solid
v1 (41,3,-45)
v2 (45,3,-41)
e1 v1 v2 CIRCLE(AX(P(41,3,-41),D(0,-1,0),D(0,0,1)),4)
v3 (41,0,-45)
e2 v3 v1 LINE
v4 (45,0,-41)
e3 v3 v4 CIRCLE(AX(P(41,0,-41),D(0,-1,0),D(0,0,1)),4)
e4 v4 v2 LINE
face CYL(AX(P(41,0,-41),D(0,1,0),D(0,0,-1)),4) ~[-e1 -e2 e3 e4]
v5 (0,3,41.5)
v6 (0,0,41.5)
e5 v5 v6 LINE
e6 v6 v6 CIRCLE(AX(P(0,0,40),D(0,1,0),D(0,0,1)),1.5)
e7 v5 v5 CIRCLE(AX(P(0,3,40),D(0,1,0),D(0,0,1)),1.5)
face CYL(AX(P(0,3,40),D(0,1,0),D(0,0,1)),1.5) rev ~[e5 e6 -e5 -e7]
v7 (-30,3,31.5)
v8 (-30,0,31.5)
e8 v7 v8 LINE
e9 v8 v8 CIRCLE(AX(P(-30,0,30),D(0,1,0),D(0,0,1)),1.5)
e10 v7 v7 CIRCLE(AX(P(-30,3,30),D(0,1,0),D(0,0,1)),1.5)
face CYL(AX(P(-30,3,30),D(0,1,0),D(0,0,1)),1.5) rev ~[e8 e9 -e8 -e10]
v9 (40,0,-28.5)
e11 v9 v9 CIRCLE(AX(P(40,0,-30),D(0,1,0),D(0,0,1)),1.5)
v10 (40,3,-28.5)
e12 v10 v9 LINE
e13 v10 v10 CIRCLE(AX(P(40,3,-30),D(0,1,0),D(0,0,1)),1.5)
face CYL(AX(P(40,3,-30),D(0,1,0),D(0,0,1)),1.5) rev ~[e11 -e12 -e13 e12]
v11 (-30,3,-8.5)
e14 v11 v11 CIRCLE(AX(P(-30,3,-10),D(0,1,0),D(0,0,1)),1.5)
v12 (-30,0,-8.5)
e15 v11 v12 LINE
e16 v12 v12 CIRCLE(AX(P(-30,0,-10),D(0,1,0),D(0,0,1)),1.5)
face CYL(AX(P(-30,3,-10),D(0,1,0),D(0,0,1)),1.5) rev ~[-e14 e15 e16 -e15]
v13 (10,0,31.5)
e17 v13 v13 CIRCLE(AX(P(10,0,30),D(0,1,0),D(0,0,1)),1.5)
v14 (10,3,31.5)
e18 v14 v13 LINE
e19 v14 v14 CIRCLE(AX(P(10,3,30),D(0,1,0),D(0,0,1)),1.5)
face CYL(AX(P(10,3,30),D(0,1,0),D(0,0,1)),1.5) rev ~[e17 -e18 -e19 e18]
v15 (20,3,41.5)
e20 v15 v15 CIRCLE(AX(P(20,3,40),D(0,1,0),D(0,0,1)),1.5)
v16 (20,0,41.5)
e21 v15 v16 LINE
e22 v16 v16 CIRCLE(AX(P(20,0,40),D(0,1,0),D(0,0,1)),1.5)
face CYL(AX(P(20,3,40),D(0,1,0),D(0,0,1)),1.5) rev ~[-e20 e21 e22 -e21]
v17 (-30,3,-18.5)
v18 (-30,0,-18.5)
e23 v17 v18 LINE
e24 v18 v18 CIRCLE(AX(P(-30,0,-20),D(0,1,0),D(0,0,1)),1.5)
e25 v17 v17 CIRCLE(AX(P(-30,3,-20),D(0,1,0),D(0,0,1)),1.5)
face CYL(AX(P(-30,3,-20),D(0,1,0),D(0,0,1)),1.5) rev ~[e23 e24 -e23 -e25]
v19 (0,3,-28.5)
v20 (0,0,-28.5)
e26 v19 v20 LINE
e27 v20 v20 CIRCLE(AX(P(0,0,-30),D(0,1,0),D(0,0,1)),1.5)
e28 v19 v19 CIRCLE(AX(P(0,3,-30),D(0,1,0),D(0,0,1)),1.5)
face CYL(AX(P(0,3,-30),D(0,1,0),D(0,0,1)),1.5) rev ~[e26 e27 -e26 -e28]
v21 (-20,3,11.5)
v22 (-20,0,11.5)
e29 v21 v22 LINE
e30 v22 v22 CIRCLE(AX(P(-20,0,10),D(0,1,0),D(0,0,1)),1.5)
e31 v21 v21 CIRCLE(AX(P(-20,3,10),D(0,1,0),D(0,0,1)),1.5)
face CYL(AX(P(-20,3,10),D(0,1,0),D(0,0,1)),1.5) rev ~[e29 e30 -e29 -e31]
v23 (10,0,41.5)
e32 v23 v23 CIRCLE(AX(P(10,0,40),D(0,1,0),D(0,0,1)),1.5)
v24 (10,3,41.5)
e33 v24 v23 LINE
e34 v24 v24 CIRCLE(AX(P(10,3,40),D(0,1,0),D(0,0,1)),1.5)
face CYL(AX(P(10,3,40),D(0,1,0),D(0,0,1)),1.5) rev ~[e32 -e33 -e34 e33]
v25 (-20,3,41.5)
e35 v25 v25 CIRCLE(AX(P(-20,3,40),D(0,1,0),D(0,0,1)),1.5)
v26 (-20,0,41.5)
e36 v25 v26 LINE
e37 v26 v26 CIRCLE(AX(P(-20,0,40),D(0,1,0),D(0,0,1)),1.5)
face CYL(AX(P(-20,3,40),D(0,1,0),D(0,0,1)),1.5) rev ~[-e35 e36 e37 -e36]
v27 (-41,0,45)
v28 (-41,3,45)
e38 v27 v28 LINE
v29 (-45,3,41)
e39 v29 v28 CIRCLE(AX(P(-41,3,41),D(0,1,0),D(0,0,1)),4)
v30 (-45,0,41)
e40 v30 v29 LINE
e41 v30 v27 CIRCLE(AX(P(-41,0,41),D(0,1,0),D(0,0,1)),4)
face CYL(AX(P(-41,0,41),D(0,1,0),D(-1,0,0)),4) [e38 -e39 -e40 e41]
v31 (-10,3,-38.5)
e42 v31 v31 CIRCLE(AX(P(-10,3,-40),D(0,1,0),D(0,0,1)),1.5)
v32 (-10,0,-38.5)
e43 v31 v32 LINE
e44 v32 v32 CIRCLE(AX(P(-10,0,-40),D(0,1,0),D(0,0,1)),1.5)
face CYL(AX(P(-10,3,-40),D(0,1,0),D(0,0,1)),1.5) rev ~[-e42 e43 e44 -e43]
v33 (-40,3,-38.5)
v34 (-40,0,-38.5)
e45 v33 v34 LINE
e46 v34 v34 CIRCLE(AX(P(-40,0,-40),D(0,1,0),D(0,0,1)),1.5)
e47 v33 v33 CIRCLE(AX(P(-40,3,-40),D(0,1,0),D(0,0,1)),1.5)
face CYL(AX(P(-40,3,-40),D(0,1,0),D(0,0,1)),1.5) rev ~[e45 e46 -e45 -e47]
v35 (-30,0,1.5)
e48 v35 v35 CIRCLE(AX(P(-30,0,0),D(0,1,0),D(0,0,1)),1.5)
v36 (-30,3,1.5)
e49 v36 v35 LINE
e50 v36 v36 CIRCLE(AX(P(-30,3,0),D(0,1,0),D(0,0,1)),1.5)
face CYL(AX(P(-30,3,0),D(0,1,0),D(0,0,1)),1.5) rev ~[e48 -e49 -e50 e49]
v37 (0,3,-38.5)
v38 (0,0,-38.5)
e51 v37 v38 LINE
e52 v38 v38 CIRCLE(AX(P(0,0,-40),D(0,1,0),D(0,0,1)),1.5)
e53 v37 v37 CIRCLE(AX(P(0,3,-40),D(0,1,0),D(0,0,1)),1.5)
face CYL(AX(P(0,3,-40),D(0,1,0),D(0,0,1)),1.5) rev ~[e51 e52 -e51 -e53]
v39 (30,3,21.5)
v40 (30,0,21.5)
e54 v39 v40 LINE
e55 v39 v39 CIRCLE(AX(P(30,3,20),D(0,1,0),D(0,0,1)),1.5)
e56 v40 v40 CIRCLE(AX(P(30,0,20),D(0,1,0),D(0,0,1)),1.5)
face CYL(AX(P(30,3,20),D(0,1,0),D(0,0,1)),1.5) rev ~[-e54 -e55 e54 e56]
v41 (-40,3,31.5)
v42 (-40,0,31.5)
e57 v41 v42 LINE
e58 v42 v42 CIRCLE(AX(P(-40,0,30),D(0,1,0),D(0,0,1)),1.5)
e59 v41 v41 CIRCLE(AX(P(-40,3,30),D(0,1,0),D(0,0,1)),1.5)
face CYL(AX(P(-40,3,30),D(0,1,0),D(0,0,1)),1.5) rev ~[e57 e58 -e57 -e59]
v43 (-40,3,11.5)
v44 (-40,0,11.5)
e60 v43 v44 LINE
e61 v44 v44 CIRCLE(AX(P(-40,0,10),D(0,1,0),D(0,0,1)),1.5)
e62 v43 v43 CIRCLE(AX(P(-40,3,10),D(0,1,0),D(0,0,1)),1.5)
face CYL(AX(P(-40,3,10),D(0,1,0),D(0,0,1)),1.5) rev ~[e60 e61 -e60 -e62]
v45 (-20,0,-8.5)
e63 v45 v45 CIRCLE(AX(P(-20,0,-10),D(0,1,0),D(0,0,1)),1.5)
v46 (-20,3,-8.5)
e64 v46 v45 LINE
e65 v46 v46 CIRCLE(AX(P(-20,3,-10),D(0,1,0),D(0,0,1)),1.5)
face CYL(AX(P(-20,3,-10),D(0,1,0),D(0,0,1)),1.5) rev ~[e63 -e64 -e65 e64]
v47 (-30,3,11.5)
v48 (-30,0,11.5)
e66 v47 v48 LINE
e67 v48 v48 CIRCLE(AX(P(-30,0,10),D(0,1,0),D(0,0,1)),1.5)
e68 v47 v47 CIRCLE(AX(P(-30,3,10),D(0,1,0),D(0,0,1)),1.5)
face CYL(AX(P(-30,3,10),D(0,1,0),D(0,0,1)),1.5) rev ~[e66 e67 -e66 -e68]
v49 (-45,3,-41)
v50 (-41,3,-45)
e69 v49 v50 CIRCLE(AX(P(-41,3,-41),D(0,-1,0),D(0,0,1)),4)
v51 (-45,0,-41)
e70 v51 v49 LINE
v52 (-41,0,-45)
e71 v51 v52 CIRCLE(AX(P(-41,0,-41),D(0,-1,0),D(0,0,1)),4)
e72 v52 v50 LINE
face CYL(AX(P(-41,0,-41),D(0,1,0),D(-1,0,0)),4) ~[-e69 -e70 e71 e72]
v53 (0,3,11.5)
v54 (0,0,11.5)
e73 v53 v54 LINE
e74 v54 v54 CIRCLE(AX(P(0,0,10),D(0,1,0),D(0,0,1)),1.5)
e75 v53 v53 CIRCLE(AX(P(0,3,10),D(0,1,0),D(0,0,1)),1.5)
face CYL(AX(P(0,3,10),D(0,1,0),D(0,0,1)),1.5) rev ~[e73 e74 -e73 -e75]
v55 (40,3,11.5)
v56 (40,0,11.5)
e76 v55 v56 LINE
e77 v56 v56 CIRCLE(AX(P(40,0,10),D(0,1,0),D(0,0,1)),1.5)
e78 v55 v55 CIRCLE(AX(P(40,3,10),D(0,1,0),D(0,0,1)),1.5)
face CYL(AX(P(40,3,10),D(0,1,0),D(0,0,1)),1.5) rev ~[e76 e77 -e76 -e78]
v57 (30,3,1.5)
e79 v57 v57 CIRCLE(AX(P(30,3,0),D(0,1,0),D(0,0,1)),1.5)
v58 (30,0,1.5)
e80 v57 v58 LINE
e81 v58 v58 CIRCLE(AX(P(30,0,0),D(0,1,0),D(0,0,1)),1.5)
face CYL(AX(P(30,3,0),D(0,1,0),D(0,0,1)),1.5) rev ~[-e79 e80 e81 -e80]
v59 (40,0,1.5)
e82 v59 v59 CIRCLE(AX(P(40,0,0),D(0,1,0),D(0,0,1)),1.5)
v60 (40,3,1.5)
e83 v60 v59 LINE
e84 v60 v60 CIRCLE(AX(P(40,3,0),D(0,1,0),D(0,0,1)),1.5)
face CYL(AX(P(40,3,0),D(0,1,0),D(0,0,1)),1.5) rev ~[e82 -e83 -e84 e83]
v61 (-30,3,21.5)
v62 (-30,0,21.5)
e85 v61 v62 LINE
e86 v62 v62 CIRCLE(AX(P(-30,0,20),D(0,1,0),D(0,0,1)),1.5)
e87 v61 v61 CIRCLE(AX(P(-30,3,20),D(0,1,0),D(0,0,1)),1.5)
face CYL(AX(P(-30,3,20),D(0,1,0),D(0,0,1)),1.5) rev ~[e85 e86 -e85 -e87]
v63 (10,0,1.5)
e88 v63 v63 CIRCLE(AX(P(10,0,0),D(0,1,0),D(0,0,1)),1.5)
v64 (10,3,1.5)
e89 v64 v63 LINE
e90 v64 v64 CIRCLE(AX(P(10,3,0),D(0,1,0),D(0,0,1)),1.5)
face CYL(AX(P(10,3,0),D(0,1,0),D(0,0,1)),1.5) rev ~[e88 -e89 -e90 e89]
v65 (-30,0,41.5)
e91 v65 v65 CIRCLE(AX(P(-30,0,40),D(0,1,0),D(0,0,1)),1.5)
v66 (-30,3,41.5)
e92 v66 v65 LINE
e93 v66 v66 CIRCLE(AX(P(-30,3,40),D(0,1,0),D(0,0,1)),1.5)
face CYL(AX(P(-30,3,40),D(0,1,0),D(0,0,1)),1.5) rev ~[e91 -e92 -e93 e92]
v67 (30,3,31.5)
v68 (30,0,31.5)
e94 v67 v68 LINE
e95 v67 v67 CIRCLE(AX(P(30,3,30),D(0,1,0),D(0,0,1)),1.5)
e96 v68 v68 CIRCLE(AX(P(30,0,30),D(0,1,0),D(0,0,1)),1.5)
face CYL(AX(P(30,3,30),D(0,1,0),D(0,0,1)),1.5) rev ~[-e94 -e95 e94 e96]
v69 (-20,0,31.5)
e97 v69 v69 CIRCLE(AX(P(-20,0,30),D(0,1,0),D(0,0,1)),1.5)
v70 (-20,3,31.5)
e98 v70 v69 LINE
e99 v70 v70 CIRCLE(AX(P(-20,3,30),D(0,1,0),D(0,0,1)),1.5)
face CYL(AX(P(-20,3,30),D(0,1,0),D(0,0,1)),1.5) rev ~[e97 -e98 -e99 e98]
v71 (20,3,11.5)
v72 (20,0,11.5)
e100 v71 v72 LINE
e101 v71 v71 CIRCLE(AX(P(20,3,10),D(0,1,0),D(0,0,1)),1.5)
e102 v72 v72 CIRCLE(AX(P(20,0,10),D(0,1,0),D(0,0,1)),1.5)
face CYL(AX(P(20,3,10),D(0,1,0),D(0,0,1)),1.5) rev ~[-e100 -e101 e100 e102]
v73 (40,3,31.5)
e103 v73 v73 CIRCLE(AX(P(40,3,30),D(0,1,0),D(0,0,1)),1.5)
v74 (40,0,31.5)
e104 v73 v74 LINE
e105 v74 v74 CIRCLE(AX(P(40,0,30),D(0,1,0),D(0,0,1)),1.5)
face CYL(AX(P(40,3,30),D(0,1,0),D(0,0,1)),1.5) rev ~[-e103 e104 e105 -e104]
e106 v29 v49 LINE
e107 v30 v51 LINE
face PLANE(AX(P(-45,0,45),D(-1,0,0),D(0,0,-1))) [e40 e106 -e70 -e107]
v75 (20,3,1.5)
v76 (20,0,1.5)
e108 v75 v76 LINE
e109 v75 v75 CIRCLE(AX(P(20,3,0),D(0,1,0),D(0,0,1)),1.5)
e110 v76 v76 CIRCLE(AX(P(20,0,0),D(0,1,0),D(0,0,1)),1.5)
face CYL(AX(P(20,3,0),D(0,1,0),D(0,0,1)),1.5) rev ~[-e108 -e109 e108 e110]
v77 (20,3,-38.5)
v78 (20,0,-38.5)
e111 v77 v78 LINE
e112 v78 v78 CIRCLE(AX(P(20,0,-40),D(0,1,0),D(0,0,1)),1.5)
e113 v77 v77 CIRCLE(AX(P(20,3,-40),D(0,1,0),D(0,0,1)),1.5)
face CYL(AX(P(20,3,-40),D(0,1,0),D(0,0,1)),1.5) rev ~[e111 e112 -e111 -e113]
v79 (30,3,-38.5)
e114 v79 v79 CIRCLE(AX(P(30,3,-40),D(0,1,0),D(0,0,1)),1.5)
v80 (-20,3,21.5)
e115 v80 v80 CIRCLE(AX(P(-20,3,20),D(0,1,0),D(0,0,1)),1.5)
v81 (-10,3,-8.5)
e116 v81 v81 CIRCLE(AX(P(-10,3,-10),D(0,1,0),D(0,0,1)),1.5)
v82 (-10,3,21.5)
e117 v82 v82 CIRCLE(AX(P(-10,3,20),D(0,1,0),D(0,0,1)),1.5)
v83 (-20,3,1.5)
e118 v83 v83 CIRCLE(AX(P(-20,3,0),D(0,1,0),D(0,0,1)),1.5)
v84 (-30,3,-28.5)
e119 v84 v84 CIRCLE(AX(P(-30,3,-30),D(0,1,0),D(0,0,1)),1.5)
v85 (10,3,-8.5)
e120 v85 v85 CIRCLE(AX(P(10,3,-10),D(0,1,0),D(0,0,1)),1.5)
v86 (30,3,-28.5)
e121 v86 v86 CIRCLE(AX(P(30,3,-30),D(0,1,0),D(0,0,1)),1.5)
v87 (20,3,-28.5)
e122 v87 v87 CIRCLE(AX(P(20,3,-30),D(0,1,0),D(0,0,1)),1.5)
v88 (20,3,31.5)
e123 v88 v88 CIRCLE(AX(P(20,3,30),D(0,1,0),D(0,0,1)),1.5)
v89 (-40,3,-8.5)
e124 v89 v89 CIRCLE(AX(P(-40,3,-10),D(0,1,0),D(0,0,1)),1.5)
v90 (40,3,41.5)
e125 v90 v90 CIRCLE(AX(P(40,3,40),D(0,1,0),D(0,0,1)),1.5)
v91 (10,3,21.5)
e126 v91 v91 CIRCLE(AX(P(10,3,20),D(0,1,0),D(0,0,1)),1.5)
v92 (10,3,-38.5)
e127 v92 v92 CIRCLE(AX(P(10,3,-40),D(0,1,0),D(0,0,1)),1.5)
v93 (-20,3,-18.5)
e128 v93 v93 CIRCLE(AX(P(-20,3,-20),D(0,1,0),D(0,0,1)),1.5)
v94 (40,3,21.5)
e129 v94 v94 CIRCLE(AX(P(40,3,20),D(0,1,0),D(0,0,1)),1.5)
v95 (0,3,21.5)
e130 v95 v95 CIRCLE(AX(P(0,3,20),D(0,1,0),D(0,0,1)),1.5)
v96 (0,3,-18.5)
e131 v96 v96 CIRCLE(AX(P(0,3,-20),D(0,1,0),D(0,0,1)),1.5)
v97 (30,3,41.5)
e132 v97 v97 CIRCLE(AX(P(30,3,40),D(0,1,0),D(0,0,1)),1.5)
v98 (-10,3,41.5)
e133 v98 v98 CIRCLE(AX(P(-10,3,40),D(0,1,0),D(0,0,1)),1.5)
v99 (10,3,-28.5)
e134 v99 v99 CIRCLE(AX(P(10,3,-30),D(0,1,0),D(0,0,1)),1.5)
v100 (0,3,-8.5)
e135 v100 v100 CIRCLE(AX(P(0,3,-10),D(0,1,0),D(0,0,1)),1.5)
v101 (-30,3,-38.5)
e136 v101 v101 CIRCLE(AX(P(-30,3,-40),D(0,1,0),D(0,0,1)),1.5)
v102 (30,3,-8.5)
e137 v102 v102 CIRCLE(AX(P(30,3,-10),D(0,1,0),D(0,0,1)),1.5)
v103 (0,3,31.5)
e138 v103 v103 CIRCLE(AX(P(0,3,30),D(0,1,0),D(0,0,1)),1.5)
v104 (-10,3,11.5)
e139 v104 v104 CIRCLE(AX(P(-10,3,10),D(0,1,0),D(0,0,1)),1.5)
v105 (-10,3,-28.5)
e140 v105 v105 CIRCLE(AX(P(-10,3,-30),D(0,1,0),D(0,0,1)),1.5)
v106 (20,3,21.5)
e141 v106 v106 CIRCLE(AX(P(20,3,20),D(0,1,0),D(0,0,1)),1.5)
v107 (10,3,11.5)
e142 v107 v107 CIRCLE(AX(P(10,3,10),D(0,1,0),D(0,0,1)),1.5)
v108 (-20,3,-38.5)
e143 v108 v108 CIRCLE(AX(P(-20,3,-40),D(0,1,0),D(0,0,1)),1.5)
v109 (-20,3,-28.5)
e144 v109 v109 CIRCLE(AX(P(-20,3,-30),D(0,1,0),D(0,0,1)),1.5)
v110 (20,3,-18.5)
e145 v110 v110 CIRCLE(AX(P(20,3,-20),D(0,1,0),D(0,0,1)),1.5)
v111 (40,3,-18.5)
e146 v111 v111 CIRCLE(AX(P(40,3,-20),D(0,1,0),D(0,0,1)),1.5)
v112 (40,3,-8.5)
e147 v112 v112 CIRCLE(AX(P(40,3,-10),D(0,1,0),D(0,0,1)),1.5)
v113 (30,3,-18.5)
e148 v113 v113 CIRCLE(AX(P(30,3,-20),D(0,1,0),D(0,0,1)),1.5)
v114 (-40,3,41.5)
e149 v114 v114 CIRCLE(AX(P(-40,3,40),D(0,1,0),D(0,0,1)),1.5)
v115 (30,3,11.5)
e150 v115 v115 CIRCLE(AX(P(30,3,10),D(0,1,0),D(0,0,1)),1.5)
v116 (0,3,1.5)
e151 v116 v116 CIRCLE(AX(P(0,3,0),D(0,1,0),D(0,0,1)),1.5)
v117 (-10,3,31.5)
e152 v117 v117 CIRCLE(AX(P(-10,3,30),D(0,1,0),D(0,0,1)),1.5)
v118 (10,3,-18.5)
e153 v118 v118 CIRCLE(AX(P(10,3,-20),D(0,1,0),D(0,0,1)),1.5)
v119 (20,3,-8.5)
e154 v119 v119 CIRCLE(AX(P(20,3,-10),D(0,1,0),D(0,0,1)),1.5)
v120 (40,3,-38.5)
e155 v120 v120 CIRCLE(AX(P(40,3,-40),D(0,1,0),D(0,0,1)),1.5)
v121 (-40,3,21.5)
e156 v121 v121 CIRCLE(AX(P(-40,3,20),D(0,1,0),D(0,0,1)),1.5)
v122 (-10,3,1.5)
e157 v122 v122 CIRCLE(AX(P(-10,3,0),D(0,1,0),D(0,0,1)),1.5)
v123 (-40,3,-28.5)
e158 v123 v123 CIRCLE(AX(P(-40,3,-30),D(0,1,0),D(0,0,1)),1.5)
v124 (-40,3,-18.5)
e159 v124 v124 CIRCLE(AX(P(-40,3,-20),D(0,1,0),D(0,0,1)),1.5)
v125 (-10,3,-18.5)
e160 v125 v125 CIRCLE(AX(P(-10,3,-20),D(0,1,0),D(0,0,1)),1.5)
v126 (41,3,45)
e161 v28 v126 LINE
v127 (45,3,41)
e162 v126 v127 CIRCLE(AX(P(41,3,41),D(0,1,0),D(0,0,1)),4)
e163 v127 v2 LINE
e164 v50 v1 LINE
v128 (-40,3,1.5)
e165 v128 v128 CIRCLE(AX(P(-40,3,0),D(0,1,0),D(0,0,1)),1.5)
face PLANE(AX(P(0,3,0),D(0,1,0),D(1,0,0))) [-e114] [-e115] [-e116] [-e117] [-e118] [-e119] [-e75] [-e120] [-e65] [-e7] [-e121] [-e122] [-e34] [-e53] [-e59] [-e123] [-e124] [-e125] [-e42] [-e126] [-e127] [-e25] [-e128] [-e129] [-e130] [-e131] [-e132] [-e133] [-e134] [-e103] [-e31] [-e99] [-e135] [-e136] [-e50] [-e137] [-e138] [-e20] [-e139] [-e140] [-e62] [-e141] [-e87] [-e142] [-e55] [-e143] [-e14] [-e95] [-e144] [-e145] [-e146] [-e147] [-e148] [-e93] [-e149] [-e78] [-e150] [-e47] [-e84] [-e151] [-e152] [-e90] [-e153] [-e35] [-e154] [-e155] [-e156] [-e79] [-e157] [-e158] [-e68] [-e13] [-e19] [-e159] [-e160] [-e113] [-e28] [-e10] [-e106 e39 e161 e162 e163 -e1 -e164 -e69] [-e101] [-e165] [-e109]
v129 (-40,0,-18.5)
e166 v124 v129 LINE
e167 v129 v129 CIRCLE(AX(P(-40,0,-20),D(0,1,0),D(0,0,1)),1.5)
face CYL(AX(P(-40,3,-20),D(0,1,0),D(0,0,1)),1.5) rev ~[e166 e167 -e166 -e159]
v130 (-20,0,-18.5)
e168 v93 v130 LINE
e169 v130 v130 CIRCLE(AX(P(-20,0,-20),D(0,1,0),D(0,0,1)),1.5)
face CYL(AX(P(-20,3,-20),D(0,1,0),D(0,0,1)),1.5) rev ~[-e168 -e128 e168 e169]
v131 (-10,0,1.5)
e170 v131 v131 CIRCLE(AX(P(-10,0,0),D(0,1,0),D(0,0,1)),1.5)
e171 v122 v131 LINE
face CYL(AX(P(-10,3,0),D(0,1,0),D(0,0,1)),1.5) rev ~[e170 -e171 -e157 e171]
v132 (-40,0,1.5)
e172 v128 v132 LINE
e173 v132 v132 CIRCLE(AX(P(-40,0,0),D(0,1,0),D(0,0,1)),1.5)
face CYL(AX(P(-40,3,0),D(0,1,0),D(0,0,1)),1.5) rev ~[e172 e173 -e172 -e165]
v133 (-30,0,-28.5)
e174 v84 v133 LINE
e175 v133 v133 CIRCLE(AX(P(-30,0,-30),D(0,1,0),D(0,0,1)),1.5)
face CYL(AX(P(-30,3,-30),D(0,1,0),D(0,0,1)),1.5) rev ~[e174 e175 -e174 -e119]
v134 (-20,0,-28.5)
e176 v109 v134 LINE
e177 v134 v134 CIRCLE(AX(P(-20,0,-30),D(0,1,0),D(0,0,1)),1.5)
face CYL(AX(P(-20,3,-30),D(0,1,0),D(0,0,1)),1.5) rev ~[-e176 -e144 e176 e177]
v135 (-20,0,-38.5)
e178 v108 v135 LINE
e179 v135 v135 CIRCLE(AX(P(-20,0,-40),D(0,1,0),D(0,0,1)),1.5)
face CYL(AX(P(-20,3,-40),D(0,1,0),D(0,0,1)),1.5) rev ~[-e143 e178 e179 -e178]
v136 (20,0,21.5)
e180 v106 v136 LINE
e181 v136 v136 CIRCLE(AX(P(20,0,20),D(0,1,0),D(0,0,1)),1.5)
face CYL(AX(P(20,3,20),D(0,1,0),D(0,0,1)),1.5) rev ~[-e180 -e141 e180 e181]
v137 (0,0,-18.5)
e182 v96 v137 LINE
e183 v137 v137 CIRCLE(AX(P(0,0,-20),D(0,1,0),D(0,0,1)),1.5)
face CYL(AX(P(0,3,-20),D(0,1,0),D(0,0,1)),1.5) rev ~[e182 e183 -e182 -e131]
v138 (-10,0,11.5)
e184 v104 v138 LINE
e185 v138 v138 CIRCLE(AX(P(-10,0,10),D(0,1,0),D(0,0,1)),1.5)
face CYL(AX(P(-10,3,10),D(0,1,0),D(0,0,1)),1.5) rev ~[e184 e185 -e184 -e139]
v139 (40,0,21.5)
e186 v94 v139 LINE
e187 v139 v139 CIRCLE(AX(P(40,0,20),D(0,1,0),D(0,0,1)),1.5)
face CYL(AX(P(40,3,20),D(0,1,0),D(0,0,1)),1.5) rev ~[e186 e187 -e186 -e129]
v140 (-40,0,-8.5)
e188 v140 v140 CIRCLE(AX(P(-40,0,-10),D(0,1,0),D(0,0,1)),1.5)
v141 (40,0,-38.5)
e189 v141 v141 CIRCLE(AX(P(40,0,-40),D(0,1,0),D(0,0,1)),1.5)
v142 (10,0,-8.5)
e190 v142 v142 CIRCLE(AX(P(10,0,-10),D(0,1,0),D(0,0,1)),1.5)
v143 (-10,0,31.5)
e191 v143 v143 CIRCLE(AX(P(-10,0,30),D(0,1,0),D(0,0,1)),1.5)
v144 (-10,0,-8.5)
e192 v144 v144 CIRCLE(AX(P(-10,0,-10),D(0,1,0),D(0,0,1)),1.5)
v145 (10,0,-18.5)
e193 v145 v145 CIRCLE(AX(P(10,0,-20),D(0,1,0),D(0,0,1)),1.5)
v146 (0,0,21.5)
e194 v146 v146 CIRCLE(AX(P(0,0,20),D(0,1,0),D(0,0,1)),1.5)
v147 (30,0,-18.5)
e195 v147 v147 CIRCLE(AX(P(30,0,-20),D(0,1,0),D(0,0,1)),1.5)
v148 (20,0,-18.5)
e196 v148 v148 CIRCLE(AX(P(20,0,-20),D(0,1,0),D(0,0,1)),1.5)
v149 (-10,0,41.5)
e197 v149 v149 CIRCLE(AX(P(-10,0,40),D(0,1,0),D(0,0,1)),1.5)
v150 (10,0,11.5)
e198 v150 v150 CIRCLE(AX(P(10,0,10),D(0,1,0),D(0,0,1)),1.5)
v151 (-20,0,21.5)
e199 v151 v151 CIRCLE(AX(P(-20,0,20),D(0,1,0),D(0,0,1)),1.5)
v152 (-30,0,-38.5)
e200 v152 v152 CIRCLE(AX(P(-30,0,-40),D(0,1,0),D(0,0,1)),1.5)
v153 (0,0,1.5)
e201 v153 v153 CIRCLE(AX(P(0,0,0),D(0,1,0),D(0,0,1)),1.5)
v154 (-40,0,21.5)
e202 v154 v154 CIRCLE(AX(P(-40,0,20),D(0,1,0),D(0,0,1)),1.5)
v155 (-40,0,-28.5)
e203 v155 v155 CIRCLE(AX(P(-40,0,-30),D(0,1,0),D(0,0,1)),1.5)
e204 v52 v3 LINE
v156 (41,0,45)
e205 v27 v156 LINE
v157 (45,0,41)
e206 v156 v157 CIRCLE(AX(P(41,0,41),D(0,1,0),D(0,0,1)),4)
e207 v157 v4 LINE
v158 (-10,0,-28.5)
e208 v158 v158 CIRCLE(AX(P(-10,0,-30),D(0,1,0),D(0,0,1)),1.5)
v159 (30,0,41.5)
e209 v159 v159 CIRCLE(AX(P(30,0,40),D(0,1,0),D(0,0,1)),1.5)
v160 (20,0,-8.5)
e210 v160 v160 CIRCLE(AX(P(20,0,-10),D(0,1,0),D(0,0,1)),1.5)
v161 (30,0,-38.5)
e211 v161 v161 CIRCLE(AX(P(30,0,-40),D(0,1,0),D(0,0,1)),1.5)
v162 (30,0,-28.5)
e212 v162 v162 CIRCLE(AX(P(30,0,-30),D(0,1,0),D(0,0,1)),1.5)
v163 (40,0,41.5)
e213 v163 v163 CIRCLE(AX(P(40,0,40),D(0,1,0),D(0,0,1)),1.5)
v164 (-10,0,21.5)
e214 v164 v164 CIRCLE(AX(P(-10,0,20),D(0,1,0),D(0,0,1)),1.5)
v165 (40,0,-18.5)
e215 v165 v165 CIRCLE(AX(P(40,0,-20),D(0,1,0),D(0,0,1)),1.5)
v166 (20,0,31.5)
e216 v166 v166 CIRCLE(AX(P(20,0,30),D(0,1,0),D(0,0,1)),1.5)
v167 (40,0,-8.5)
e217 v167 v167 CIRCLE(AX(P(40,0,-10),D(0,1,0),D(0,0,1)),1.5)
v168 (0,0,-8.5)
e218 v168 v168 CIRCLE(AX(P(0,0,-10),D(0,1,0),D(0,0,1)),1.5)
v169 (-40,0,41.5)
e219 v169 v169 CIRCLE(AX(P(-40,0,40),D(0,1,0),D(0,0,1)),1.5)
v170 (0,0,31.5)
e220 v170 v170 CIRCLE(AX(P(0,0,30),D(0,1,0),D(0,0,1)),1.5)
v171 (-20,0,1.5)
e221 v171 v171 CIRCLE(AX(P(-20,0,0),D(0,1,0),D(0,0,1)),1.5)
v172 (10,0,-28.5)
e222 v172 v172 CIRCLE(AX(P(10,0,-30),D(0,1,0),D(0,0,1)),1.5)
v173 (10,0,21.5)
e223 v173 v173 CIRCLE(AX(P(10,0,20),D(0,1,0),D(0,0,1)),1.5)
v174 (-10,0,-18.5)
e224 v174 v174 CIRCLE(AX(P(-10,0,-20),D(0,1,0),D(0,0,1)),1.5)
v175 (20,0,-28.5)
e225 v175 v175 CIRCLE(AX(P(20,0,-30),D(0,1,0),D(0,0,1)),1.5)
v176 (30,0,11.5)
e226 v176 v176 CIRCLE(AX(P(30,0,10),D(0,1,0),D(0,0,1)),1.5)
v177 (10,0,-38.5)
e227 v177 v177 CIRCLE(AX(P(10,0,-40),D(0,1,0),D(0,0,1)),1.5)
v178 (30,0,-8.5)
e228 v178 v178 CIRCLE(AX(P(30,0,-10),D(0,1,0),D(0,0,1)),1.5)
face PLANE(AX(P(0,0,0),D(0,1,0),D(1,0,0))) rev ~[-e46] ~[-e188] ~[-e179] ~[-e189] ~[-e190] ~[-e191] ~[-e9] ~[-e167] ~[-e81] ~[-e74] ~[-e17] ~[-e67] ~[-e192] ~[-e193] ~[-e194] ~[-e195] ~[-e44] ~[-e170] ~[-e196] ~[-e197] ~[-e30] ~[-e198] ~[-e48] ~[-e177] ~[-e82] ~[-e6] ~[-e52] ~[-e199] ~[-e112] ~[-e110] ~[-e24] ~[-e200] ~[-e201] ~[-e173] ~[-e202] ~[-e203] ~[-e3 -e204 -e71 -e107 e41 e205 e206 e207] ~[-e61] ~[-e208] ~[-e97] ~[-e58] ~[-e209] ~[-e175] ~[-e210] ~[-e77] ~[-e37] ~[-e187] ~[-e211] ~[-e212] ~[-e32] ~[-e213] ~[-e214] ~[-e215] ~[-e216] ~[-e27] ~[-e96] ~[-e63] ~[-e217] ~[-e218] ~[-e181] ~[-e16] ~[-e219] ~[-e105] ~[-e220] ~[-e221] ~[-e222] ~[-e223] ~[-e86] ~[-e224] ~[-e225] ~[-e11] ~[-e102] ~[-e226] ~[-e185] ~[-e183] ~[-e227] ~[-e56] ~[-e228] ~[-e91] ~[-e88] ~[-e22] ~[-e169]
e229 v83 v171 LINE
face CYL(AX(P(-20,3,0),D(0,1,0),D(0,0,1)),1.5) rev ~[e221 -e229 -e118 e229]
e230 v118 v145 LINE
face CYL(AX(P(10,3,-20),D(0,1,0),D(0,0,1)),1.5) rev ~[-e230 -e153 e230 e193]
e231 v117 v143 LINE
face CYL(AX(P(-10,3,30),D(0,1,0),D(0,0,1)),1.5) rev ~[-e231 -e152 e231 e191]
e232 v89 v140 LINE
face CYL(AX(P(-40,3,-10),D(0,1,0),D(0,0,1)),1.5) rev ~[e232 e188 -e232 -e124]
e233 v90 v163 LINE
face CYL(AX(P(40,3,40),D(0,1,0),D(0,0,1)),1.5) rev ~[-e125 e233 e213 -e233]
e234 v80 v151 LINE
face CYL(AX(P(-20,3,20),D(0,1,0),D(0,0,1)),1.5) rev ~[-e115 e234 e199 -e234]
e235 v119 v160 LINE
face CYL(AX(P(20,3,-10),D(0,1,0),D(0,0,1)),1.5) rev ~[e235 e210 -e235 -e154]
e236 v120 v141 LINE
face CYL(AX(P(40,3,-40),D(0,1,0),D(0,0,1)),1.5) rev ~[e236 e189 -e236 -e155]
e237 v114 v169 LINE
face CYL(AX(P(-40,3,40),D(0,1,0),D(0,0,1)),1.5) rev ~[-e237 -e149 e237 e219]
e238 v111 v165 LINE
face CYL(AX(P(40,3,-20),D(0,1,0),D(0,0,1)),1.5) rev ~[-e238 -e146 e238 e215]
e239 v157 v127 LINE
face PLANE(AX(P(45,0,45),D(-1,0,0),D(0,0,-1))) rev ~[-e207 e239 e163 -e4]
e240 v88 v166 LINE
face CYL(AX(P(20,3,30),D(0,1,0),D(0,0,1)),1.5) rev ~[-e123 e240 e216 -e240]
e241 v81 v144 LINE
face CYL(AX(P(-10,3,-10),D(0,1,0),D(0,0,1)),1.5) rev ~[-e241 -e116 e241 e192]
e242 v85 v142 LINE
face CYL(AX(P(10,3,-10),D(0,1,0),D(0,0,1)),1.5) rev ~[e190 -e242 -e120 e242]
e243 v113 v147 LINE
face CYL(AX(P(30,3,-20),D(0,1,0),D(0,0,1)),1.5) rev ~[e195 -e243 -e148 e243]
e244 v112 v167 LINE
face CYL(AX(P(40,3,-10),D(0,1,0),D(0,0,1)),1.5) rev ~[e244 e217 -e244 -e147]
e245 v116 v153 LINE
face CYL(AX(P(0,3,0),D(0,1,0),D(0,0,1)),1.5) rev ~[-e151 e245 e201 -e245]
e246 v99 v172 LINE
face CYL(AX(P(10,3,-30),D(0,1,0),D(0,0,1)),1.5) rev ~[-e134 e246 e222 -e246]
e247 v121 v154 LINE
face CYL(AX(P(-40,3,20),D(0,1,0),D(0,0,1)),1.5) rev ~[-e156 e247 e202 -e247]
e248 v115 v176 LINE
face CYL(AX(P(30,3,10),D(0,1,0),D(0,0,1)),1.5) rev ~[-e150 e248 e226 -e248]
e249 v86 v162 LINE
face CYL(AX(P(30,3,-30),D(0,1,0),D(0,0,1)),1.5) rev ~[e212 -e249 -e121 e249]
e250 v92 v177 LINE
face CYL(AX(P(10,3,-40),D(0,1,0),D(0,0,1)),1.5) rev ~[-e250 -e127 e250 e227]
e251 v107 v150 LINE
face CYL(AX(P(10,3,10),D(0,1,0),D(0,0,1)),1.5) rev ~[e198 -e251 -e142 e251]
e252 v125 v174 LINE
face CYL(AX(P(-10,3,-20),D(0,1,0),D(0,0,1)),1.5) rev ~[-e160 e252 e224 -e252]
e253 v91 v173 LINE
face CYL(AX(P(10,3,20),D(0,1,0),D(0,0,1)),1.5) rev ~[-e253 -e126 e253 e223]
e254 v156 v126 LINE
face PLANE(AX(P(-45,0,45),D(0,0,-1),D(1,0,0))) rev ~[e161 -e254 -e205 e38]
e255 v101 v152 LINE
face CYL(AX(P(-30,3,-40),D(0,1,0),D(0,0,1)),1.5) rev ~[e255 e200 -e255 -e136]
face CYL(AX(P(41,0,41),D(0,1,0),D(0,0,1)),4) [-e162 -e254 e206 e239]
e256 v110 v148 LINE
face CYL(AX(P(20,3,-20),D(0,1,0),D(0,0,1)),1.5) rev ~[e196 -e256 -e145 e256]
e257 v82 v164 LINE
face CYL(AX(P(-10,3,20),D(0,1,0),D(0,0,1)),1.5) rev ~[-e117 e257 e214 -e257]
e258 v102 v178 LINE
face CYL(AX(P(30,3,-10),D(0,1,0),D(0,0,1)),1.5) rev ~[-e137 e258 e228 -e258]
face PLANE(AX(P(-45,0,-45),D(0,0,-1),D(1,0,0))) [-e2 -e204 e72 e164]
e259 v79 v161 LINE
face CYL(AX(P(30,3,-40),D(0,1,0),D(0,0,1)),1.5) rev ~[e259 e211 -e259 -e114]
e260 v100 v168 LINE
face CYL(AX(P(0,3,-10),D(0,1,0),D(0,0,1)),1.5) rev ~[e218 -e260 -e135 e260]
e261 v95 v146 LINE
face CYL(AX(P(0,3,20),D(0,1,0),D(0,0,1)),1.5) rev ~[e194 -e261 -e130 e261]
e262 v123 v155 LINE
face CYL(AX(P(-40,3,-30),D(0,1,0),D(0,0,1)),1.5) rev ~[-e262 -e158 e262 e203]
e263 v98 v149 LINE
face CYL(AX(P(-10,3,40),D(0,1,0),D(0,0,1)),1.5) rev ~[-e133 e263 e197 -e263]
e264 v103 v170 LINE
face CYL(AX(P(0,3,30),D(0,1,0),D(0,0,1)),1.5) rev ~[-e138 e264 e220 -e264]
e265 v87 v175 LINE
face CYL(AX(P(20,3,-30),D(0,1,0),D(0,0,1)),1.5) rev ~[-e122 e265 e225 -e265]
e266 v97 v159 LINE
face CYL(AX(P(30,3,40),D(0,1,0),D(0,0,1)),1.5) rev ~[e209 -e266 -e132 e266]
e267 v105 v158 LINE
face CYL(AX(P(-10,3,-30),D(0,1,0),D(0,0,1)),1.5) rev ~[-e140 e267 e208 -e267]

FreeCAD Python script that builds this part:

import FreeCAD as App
import Part
import Sketcher

V = App.Vector
Q = App.Units.Quantity


def edges_at(feature, points):
    """Names of the edges that pass closest to the given points."""
    edges = feature.Shape.Edges
    near = lambda p: min(range(len(edges)), key=lambda i: edges[i].distToShape(Part.Vertex(*p))[0])
    return sorted({f"Edge{near(p) + 1}" for p in points})

doc = App.newDocument("Part")
params = doc.addObject("Spreadsheet::Sheet", "Params")
for row, (alias, value) in enumerate([
    ("sketch1_width", "90 mm"),
    ("pad1_length", "3 mm"),
    ("sketch2_diameter", "3 mm"),
    ("sketch3_diameter", "3 mm"),
    ("sketch4_diameter", "3 mm"),
    ("fillet_radius", "4 mm"),
], start=1):
    params.set(f"A{row}", alias)
    params.set(f"B{row}", "=" + value)
    params.setAlias(f"B{row}", alias)

body = doc.addObject("PartDesign::Body", "Body")

sketch1 = body.newObject("Sketcher::SketchObject", "Sketch")
sketch1.AttachmentSupport = (doc.getObject("XZ_Plane"), [""])
sketch1.MapMode = "FlatFace"
sketch1.addGeometry([
    Part.LineSegment(V(-45, -45, 0), V(-45, 45, 0)),
    Part.LineSegment(V(-45, 45, 0), V(45, 45, 0)),
    Part.LineSegment(V(45, 45, 0), V(45, -45, 0)),
    Part.LineSegment(V(45, -45, 0), V(-45, -45, 0)),
], False)
sketch1.addConstraint([
    Sketcher.Constraint("Coincident", 0, 2, 1, 1),
    Sketcher.Constraint("Coincident", 1, 2, 2, 1),
    Sketcher.Constraint("Coincident", 2, 2, 3, 1),
    Sketcher.Constraint("Coincident", 3, 2, 0, 1),
    Sketcher.Constraint("Vertical", 0),
    Sketcher.Constraint("Horizontal", 1),
    Sketcher.Constraint("Vertical", 2),
    Sketcher.Constraint("Horizontal", 3),
    Sketcher.Constraint("Symmetric", 0, 2, 2, 2, -1, 1),
    Sketcher.Constraint("Equal", 3, 0),
    Sketcher.Constraint("DistanceX", 1, 1, 1, 2, Q("90 mm")),
])
sketch1.setExpression("Constraints[10]", "Params.sketch1_width")
pad1 = body.newObject("PartDesign::Pad", "Pad")
pad1.Profile = sketch1
pad1.setExpression("Length", "Params.pad1_length")
pad1.Reversed = True

sketch2 = body.newObject("Sketcher::SketchObject", "Sketch001")
sketch2.AttachmentSupport = (doc.getObject("XZ_Plane"), [""])
sketch2.MapMode = "FlatFace"
sketch2.AttachmentOffset = App.Placement(V(0, 0, -3), App.Rotation())
sketch2.addGeometry([
    Part.Circle(V(-40, -40, 0), V(0, 0, 1), 1.5),
    Part.Circle(V(40, -40, 0), V(0, 0, 1), 1.5),
    Part.Circle(V(40, 40, 0), V(0, 0, 1), 1.5),
    Part.Circle(V(-40, 40, 0), V(0, 0, 1), 1.5),
], False)
sketch2.addConstraint([
    Sketcher.Constraint("Equal", 0, 1),
    Sketcher.Constraint("Equal", 1, 2),
    Sketcher.Constraint("Equal", 2, 3),
    Sketcher.Constraint("Symmetric", 0, 3, 2, 3, -1, 1),
    Sketcher.Constraint("Symmetric", 1, 3, 3, 3, -1, 1),
    Sketcher.Constraint("Symmetric", 0, 3, 1, 3, -2),
    Sketcher.Constraint("Diameter", 0, Q("3 mm")),
    Sketcher.Constraint("DistanceX", 0, 3, -1, 1, Q("40 mm")),
    Sketcher.Constraint("DistanceY", 0, 3, -1, 1, Q("40 mm")),
])
sketch2.setExpression("Constraints[6]", "Params.sketch2_diameter")
pocket1 = body.newObject("PartDesign::Pocket", "Pocket")
pocket1.Profile = sketch2
pocket1.Type = "ThroughAll"
pocket1.Reversed = True

sketch3 = body.newObject("Sketcher::SketchObject", "Sketch002")
sketch3.AttachmentSupport = (doc.getObject("XZ_Plane"), [""])
sketch3.MapMode = "FlatFace"
sketch3.AttachmentOffset = App.Placement(V(0, 0, -3), App.Rotation())
sketch3.addGeometry([
    Part.Circle(V(0, 0, 0), V(0, 0, 1), 1.5),
    Part.Circle(V(10, 0, 0), V(0, 0, 1), 1.5),
    Part.Circle(V(20, 0, 0), V(0, 0, 1), 1.5),
    Part.Circle(V(30, 0, 0), V(0, 0, 1), 1.5),
    Part.Circle(V(40, 0, 0), V(0, 0, 1), 1.5),
    Part.Circle(V(10, -10, 0), V(0, 0, 1), 1.5),
    Part.Circle(V(20, -10, 0), V(0, 0, 1), 1.5),
    Part.Circle(V(30, -10, 0), V(0, 0, 1), 1.5),
    Part.Circle(V(40, -10, 0), V(0, 0, 1), 1.5),
    Part.Circle(V(10, -20, 0), V(0, 0, 1), 1.5),
    Part.Circle(V(20, -20, 0), V(0, 0, 1), 1.5),
    Part.Circle(V(30, -20, 0), V(0, 0, 1), 1.5),
    Part.Circle(V(40, -20, 0), V(0, 0, 1), 1.5),
    Part.Circle(V(10, -30, 0), V(0, 0, 1), 1.5),
    Part.Circle(V(20, -30, 0), V(0, 0, 1), 1.5),
    Part.Circle(V(30, -30, 0), V(0, 0, 1), 1.5),
    Part.Circle(V(40, -30, 0), V(0, 0, 1), 1.5),
    Part.Circle(V(10, -40, 0), V(0, 0, 1), 1.5),
    Part.Circle(V(20, -40, 0), V(0, 0, 1), 1.5),
    Part.Circle(V(30, -40, 0), V(0, 0, 1), 1.5),
    Part.Circle(V(40, -40, 0), V(0, 0, 1), 1.5),
    Part.Circle(V(0, -10, 0), V(0, 0, 1), 1.5),
    Part.Circle(V(0, -20, 0), V(0, 0, 1), 1.5),
    Part.Circle(V(0, -30, 0), V(0, 0, 1), 1.5),
    Part.Circle(V(0, -40, 0), V(0, 0, 1), 1.5),
    Part.Circle(V(-10, 0, 0), V(0, 0, 1), 1.5),
    Part.Circle(V(-20, 0, 0), V(0, 0, 1), 1.5),
    Part.Circle(V(-30, 0, 0), V(0, 0, 1), 1.5),
    Part.Circle(V(-40, 0, 0), V(0, 0, 1), 1.5),
    Part.Circle(V(-10, 10, 0), V(0, 0, 1), 1.5),
    Part.Circle(V(-20, 10, 0), V(0, 0, 1), 1.5),
    Part.Circle(V(-30, 10, 0), V(0, 0, 1), 1.5),
    Part.Circle(V(-40, 10, 0), V(0, 0, 1), 1.5),
    Part.Circle(V(-10, 20, 0), V(0, 0, 1), 1.5),
    Part.Circle(V(-20, 20, 0), V(0, 0, 1), 1.5),
    Part.Circle(V(-30, 20, 0), V(0, 0, 1), 1.5),
    Part.Circle(V(-40, 20, 0), V(0, 0, 1), 1.5),
    Part.Circle(V(-10, 30, 0), V(0, 0, 1), 1.5),
    Part.Circle(V(-20, 30, 0), V(0, 0, 1), 1.5),
    Part.Circle(V(-30, 30, 0), V(0, 0, 1), 1.5),
    Part.Circle(V(-40, 30, 0), V(0, 0, 1), 1.5),
    Part.Circle(V(-10, 40, 0), V(0, 0, 1), 1.5),
    Part.Circle(V(-20, 40, 0), V(0, 0, 1), 1.5),
    Part.Circle(V(-30, 40, 0), V(0, 0, 1), 1.5),
    Part.Circle(V(-40, 40, 0), V(0, 0, 1), 1.5),
    Part.Circle(V(0, 10, 0), V(0, 0, 1), 1.5),
    Part.Circle(V(0, 20, 0), V(0, 0, 1), 1.5),
    Part.Circle(V(0, 30, 0), V(0, 0, 1), 1.5),
    Part.Circle(V(0, 40, 0), V(0, 0, 1), 1.5),
], False)
sketch3.addConstraint([
    Sketcher.Constraint("Coincident", 0, 3, -1, 1),
    Sketcher.Constraint("Equal", 0, 1),
    Sketcher.Constraint("Equal", 1, 2),
    Sketcher.Constraint("Equal", 2, 3),
    Sketcher.Constraint("Equal", 3, 4),
    Sketcher.Constraint("Equal", 4, 5),
    Sketcher.Constraint("Equal", 5, 6),
    Sketcher.Constraint("Equal", 6, 7),
    Sketcher.Constraint("Equal", 7, 8),
    Sketcher.Constraint("Equal", 8, 9),
    Sketcher.Constraint("Equal", 9, 10),
    Sketcher.Constraint("Equal", 10, 11),
    Sketcher.Constraint("Equal", 11, 12),
    Sketcher.Constraint("Equal", 12, 13),
    Sketcher.Constraint("Equal", 13, 14),
    Sketcher.Constraint("Equal", 14, 15),
    Sketcher.Constraint("Equal", 15, 16),
    Sketcher.Constraint("Equal", 16, 17),
    Sketcher.Constraint("Equal", 17, 18),
    Sketcher.Constraint("Equal", 18, 19),
    Sketcher.Constraint("Equal", 19, 20),
    Sketcher.Constraint("Equal", 20, 21),
    Sketcher.Constraint("Equal", 21, 22),
    Sketcher.Constraint("Equal", 22, 23),
    Sketcher.Constraint("Equal", 23, 24),
    Sketcher.Constraint("Equal", 24, 25),
    Sketcher.Constraint("Equal", 25, 26),
    Sketcher.Constraint("Equal", 26, 27),
    Sketcher.Constraint("Equal", 27, 28),
    Sketcher.Constraint("Equal", 28, 29),
    Sketcher.Constraint("Equal", 29, 30),
    Sketcher.Constraint("Equal", 30, 31),
    Sketcher.Constraint("Equal", 31, 32),
    Sketcher.Constraint("Equal", 32, 33),
    Sketcher.Constraint("Equal", 33, 34),
    Sketcher.Constraint("Equal", 34, 35),
    Sketcher.Constraint("Equal", 35, 36),
    Sketcher.Constraint("Equal", 36, 37),
    Sketcher.Constraint("Equal", 37, 38),
    Sketcher.Constraint("Equal", 38, 39),
    Sketcher.Constraint("Equal", 39, 40),
    Sketcher.Constraint("Equal", 40, 41),
    Sketcher.Constraint("Equal", 41, 42),
    Sketcher.Constraint("Equal", 42, 43),
    Sketcher.Constraint("Equal", 43, 44),
    Sketcher.Constraint("Equal", 44, 45),
    Sketcher.Constraint("Equal", 45, 46),
    Sketcher.Constraint("Equal", 46, 47),
    Sketcher.Constraint("Equal", 47, 48),
    Sketcher.Constraint("Symmetric", 1, 3, 25, 3, -1, 1),
    Sketcher.Constraint("Symmetric", 2, 3, 26, 3, -1, 1),
    Sketcher.Constraint("Symmetric", 3, 3, 27, 3, -1, 1),
    Sketcher.Constraint("Symmetric", 4, 3, 28, 3, -1, 1),
    Sketcher.Constraint("Symmetric", 5, 3, 29, 3, -1, 1),
    Sketcher.Constraint("Symmetric", 6, 3, 30, 3, -1, 1),
    Sketcher.Constraint("Symmetric", 7, 3, 31, 3, -1, 1),
    Sketcher.Constraint("Symmetric", 8, 3, 32, 3, -1, 1),
    Sketcher.Constraint("Symmetric", 9, 3, 33, 3, -1, 1),
    Sketcher.Constraint("Symmetric", 10, 3, 34, 3, -1, 1),
    Sketcher.Constraint("Symmetric", 11, 3, 35, 3, -1, 1),
    Sketcher.Constraint("Symmetric", 12, 3, 36, 3, -1, 1),
    Sketcher.Constraint("Symmetric", 13, 3, 37, 3, -1, 1),
    Sketcher.Constraint("Symmetric", 14, 3, 38, 3, -1, 1),
    Sketcher.Constraint("Symmetric", 15, 3, 39, 3, -1, 1),
    Sketcher.Constraint("Symmetric", 16, 3, 40, 3, -1, 1),
    Sketcher.Constraint("Symmetric", 17, 3, 41, 3, -1, 1),
    Sketcher.Constraint("Symmetric", 18, 3, 42, 3, -1, 1),
    Sketcher.Constraint("Symmetric", 19, 3, 43, 3, -1, 1),
    Sketcher.Constraint("Symmetric", 20, 3, 44, 3, -1, 1),
    Sketcher.Constraint("Symmetric", 21, 3, 45, 3, -1, 1),
    Sketcher.Constraint("Symmetric", 22, 3, 46, 3, -1, 1),
    Sketcher.Constraint("Symmetric", 23, 3, 47, 3, -1, 1),
    Sketcher.Constraint("Symmetric", 24, 3, 48, 3, -1, 1),
    Sketcher.Constraint("PointOnObject", 1, 3, -1),
    Sketcher.Constraint("PointOnObject", 2, 3, -1),
    Sketcher.Constraint("PointOnObject", 3, 3, -1),
    Sketcher.Constraint("PointOnObject", 4, 3, -1),
    Sketcher.Constraint("PointOnObject", 21, 3, -2),
    Sketcher.Constraint("PointOnObject", 22, 3, -2),
    Sketcher.Constraint("PointOnObject", 23, 3, -2),
    Sketcher.Constraint("PointOnObject", 24, 3, -2),
    Sketcher.Constraint("Horizontal", 5, 3, 6, 3),
    Sketcher.Constraint("Horizontal", 6, 3, 7, 3),
    Sketcher.Constraint("Horizontal", 7, 3, 8, 3),
    Sketcher.Constraint("Horizontal", 9, 3, 10, 3),
    Sketcher.Constraint("Horizontal", 10, 3, 11, 3),
    Sketcher.Constraint("Horizontal", 11, 3, 12, 3),
    Sketcher.Constraint("Horizontal", 13, 3, 14, 3),
    Sketcher.Constraint("Horizontal", 14, 3, 15, 3),
    Sketcher.Constraint("Horizontal", 15, 3, 16, 3),
    Sketcher.Constraint("Horizontal", 17, 3, 18, 3),
    Sketcher.Constraint("Horizontal", 18, 3, 19, 3),
    Sketcher.Constraint("Horizontal", 19, 3, 20, 3),
    Sketcher.Constraint("Horizontal", 8, 3, 21, 3),
    Sketcher.Constraint("Horizontal", 12, 3, 22, 3),
    Sketcher.Constraint("Horizontal", 16, 3, 23, 3),
    Sketcher.Constraint("Horizontal", 20, 3, 24, 3),
    Sketcher.Constraint("Vertical", 1, 3, 5, 3),
    Sketcher.Constraint("Vertical", 2, 3, 6, 3),
    Sketcher.Constraint("Vertical", 3, 3, 7, 3),
    Sketcher.Constraint("Vertical", 4, 3, 8, 3),
    Sketcher.Constraint("Vertical", 5, 3, 9, 3),
    Sketcher.Constraint("Vertical", 6, 3, 10, 3),
    Sketcher.Constraint("Vertical", 7, 3, 11, 3),
    Sketcher.Constraint("Vertical", 8, 3, 12, 3),
    Sketcher.Constraint("Vertical", 9, 3, 13, 3),
    Sketcher.Constraint("Vertical", 10, 3, 14, 3),
    Sketcher.Constraint("Vertical", 11, 3, 15, 3),
    Sketcher.Constraint("Vertical", 12, 3, 16, 3),
    Sketcher.Constraint("Vertical", 13, 3, 17, 3),
    Sketcher.Constraint("Vertical", 14, 3, 18, 3),
    Sketcher.Constraint("Vertical", 15, 3, 19, 3),
    Sketcher.Constraint("Vertical", 16, 3, 20, 3),
    Sketcher.Constraint("Diameter", 0, Q("3 mm")),
    Sketcher.Constraint("DistanceX", -1, 1, 1, 3, Q("10 mm")),
    Sketcher.Constraint("DistanceX", -1, 1, 2, 3, Q("20 mm")),
    Sketcher.Constraint("DistanceX", -1, 1, 3, 3, Q("30 mm")),
    Sketcher.Constraint("DistanceX", -1, 1, 4, 3, Q("40 mm")),
    Sketcher.Constraint("DistanceY", 5, 3, -1, 1, Q("10 mm")),
    Sketcher.Constraint("DistanceY", 9, 3, -1, 1, Q("20 mm")),
    Sketcher.Constraint("DistanceY", 13, 3, -1, 1, Q("30 mm")),
    Sketcher.Constraint("DistanceY", 17, 3, -1, 1, Q("40 mm")),
])
sketch3.setExpression("Constraints[113]", "Params.sketch3_diameter")
pocket2 = body.newObject("PartDesign::Pocket", "Pocket001")
pocket2.Profile = sketch3
pocket2.Type = "ThroughAll"
pocket2.Reversed = True

sketch4 = body.newObject("Sketcher::SketchObject", "Sketch003")
sketch4.AttachmentSupport = (doc.getObject("XZ_Plane"), [""])
sketch4.MapMode = "FlatFace"
sketch4.AttachmentOffset = App.Placement(V(0, 0, -3), App.Rotation())
sketch4.addGeometry([
    Part.Circle(V(0, 0, 0), V(0, 0, 1), 1.5),
    Part.Circle(V(-10, 0, 0), V(0, 0, 1), 1.5),
    Part.Circle(V(-20, 0, 0), V(0, 0, 1), 1.5),
    Part.Circle(V(-30, 0, 0), V(0, 0, 1), 1.5),
    Part.Circle(V(-40, 0, 0), V(0, 0, 1), 1.5),
    Part.Circle(V(-10, -10, 0), V(0, 0, 1), 1.5),
    Part.Circle(V(-20, -10, 0), V(0, 0, 1), 1.5),
    Part.Circle(V(-30, -10, 0), V(0, 0, 1), 1.5),
    Part.Circle(V(-40, -10, 0), V(0, 0, 1), 1.5),
    Part.Circle(V(-10, -20, 0), V(0, 0, 1), 1.5),
    Part.Circle(V(-20, -20, 0), V(0, 0, 1), 1.5),
    Part.Circle(V(-30, -20, 0), V(0, 0, 1), 1.5),
    Part.Circle(V(-40, -20, 0), V(0, 0, 1), 1.5),
    Part.Circle(V(-10, -30, 0), V(0, 0, 1), 1.5),
    Part.Circle(V(-20, -30, 0), V(0, 0, 1), 1.5),
    Part.Circle(V(-30, -30, 0), V(0, 0, 1), 1.5),
    Part.Circle(V(-40, -30, 0), V(0, 0, 1), 1.5),
    Part.Circle(V(-10, -40, 0), V(0, 0, 1), 1.5),
    Part.Circle(V(-20, -40, 0), V(0, 0, 1), 1.5),
    Part.Circle(V(-30, -40, 0), V(0, 0, 1), 1.5),
    Part.Circle(V(-40, -40, 0), V(0, 0, 1), 1.5),
    Part.Circle(V(0, -10, 0), V(0, 0, 1), 1.5),
    Part.Circle(V(0, -20, 0), V(0, 0, 1), 1.5),
    Part.Circle(V(0, -30, 0), V(0, 0, 1), 1.5),
    Part.Circle(V(0, -40, 0), V(0, 0, 1), 1.5),
    Part.Circle(V(10, 0, 0), V(0, 0, 1), 1.5),
    Part.Circle(V(20, 0, 0), V(0, 0, 1), 1.5),
    Part.Circle(V(30, 0, 0), V(0, 0, 1), 1.5),
    Part.Circle(V(40, 0, 0), V(0, 0, 1), 1.5),
    Part.Circle(V(10, 10, 0), V(0, 0, 1), 1.5),
    Part.Circle(V(20, 10, 0), V(0, 0, 1), 1.5),
    Part.Circle(V(30, 10, 0), V(0, 0, 1), 1.5),
    Part.Circle(V(40, 10, 0), V(0, 0, 1), 1.5),
    Part.Circle(V(10, 20, 0), V(0, 0, 1), 1.5),
    Part.Circle(V(20, 20, 0), V(0, 0, 1), 1.5),
    Part.Circle(V(30, 20, 0), V(0, 0, 1), 1.5),
    Part.Circle(V(40, 20, 0), V(0, 0, 1), 1.5),
    Part.Circle(V(10, 30, 0), V(0, 0, 1), 1.5),
    Part.Circle(V(20, 30, 0), V(0, 0, 1), 1.5),
    Part.Circle(V(30, 30, 0), V(0, 0, 1), 1.5),
    Part.Circle(V(40, 30, 0), V(0, 0, 1), 1.5),
    Part.Circle(V(10, 40, 0), V(0, 0, 1), 1.5),
    Part.Circle(V(20, 40, 0), V(0, 0, 1), 1.5),
    Part.Circle(V(30, 40, 0), V(0, 0, 1), 1.5),
    Part.Circle(V(40, 40, 0), V(0, 0, 1), 1.5),
    Part.Circle(V(0, 10, 0), V(0, 0, 1), 1.5),
    Part.Circle(V(0, 20, 0), V(0, 0, 1), 1.5),
    Part.Circle(V(0, 30, 0), V(0, 0, 1), 1.5),
    Part.Circle(V(0, 40, 0), V(0, 0, 1), 1.5),
], False)
sketch4.addConstraint([
    Sketcher.Constraint("Coincident", 0, 3, -1, 1),
    Sketcher.Constraint("Equal", 0, 1),
    Sketcher.Constraint("Equal", 1, 2),
    Sketcher.Constraint("Equal", 2, 3),
    Sketcher.Constraint("Equal", 3, 4),
    Sketcher.Constraint("Equal", 4, 5),
    Sketcher.Constraint("Equal", 5, 6),
    Sketcher.Constraint("Equal", 6, 7),
    Sketcher.Constraint("Equal", 7, 8),
    Sketcher.Constraint("Equal", 8, 9),
    Sketcher.Constraint("Equal", 9, 10),
    Sketcher.Constraint("Equal", 10, 11),
    Sketcher.Constraint("Equal", 11, 12),
    Sketcher.Constraint("Equal", 12, 13),
    Sketcher.Constraint("Equal", 13, 14),
    Sketcher.Constraint("Equal", 14, 15),
    Sketcher.Constraint("Equal", 15, 16),
    Sketcher.Constraint("Equal", 16, 17),
    Sketcher.Constraint("Equal", 17, 18),
    Sketcher.Constraint("Equal", 18, 19),
    Sketcher.Constraint("Equal", 19, 20),
    Sketcher.Constraint("Equal", 20, 21),
    Sketcher.Constraint("Equal", 21, 22),
    Sketcher.Constraint("Equal", 22, 23),
    Sketcher.Constraint("Equal", 23, 24),
    Sketcher.Constraint("Equal", 24, 25),
    Sketcher.Constraint("Equal", 25, 26),
    Sketcher.Constraint("Equal", 26, 27),
    Sketcher.Constraint("Equal", 27, 28),
    Sketcher.Constraint("Equal", 28, 29),
    Sketcher.Constraint("Equal", 29, 30),
    Sketcher.Constraint("Equal", 30, 31),
    Sketcher.Constraint("Equal", 31, 32),
    Sketcher.Constraint("Equal", 32, 33),
    Sketcher.Constraint("Equal", 33, 34),
    Sketcher.Constraint("Equal", 34, 35),
    Sketcher.Constraint("Equal", 35, 36),
    Sketcher.Constraint("Equal", 36, 37),
    Sketcher.Constraint("Equal", 37, 38),
    Sketcher.Constraint("Equal", 38, 39),
    Sketcher.Constraint("Equal", 39, 40),
    Sketcher.Constraint("Equal", 40, 41),
    Sketcher.Constraint("Equal", 41, 42),
    Sketcher.Constraint("Equal", 42, 43),
    Sketcher.Constraint("Equal", 43, 44),
    Sketcher.Constraint("Equal", 44, 45),
    Sketcher.Constraint("Equal", 45, 46),
    Sketcher.Constraint("Equal", 46, 47),
    Sketcher.Constraint("Equal", 47, 48),
    Sketcher.Constraint("Symmetric", 1, 3, 25, 3, -1, 1),
    Sketcher.Constraint("Symmetric", 2, 3, 26, 3, -1, 1),
    Sketcher.Constraint("Symmetric", 3, 3, 27, 3, -1, 1),
    Sketcher.Constraint("Symmetric", 4, 3, 28, 3, -1, 1),
    Sketcher.Constraint("Symmetric", 5, 3, 29, 3, -1, 1),
    Sketcher.Constraint("Symmetric", 6, 3, 30, 3, -1, 1),
    Sketcher.Constraint("Symmetric", 7, 3, 31, 3, -1, 1),
    Sketcher.Constraint("Symmetric", 8, 3, 32, 3, -1, 1),
    Sketcher.Constraint("Symmetric", 9, 3, 33, 3, -1, 1),
    Sketcher.Constraint("Symmetric", 10, 3, 34, 3, -1, 1),
    Sketcher.Constraint("Symmetric", 11, 3, 35, 3, -1, 1),
    Sketcher.Constraint("Symmetric", 12, 3, 36, 3, -1, 1),
    Sketcher.Constraint("Symmetric", 13, 3, 37, 3, -1, 1),
    Sketcher.Constraint("Symmetric", 14, 3, 38, 3, -1, 1),
    Sketcher.Constraint("Symmetric", 15, 3, 39, 3, -1, 1),
    Sketcher.Constraint("Symmetric", 16, 3, 40, 3, -1, 1),
    Sketcher.Constraint("Symmetric", 17, 3, 41, 3, -1, 1),
    Sketcher.Constraint("Symmetric", 18, 3, 42, 3, -1, 1),
    Sketcher.Constraint("Symmetric", 19, 3, 43, 3, -1, 1),
    Sketcher.Constraint("Symmetric", 20, 3, 44, 3, -1, 1),
    Sketcher.Constraint("Symmetric", 21, 3, 45, 3, -1, 1),
    Sketcher.Constraint("Symmetric", 22, 3, 46, 3, -1, 1),
    Sketcher.Constraint("Symmetric", 23, 3, 47, 3, -1, 1),
    Sketcher.Constraint("Symmetric", 24, 3, 48, 3, -1, 1),
    Sketcher.Constraint("PointOnObject", 1, 3, -1),
    Sketcher.Constraint("PointOnObject", 2, 3, -1),
    Sketcher.Constraint("PointOnObject", 3, 3, -1),
    Sketcher.Constraint("PointOnObject", 4, 3, -1),
    Sketcher.Constraint("PointOnObject", 21, 3, -2),
    Sketcher.Constraint("PointOnObject", 22, 3, -2),
    Sketcher.Constraint("PointOnObject", 23, 3, -2),
    Sketcher.Constraint("PointOnObject", 24, 3, -2),
    Sketcher.Constraint("Horizontal", 5, 3, 6, 3),
    Sketcher.Constraint("Horizontal", 6, 3, 7, 3),
    Sketcher.Constraint("Horizontal", 7, 3, 8, 3),
    Sketcher.Constraint("Horizontal", 9, 3, 10, 3),
    Sketcher.Constraint("Horizontal", 10, 3, 11, 3),
    Sketcher.Constraint("Horizontal", 11, 3, 12, 3),
    Sketcher.Constraint("Horizontal", 13, 3, 14, 3),
    Sketcher.Constraint("Horizontal", 14, 3, 15, 3),
    Sketcher.Constraint("Horizontal", 15, 3, 16, 3),
    Sketcher.Constraint("Horizontal", 17, 3, 18, 3),
    Sketcher.Constraint("Horizontal", 18, 3, 19, 3),
    Sketcher.Constraint("Horizontal", 19, 3, 20, 3),
    Sketcher.Constraint("Horizontal", 8, 3, 21, 3),
    Sketcher.Constraint("Horizontal", 12, 3, 22, 3),
    Sketcher.Constraint("Horizontal", 16, 3, 23, 3),
    Sketcher.Constraint("Horizontal", 20, 3, 24, 3),
    Sketcher.Constraint("Vertical", 1, 3, 5, 3),
    Sketcher.Constraint("Vertical", 2, 3, 6, 3),
    Sketcher.Constraint("Vertical", 3, 3, 7, 3),
    Sketcher.Constraint("Vertical", 4, 3, 8, 3),
    Sketcher.Constraint("Vertical", 5, 3, 9, 3),
    Sketcher.Constraint("Vertical", 6, 3, 10, 3),
    Sketcher.Constraint("Vertical", 7, 3, 11, 3),
    Sketcher.Constraint("Vertical", 8, 3, 12, 3),
    Sketcher.Constraint("Vertical", 9, 3, 13, 3),
    Sketcher.Constraint("Vertical", 10, 3, 14, 3),
    Sketcher.Constraint("Vertical", 11, 3, 15, 3),
    Sketcher.Constraint("Vertical", 12, 3, 16, 3),
    Sketcher.Constraint("Vertical", 13, 3, 17, 3),
    Sketcher.Constraint("Vertical", 14, 3, 18, 3),
    Sketcher.Constraint("Vertical", 15, 3, 19, 3),
    Sketcher.Constraint("Vertical", 16, 3, 20, 3),
    Sketcher.Constraint("Diameter", 0, Q("3 mm")),
    Sketcher.Constraint("DistanceX", 1, 3, -1, 1, Q("10 mm")),
    Sketcher.Constraint("DistanceX", 2, 3, -1, 1, Q("20 mm")),
    Sketcher.Constraint("DistanceX", 3, 3, -1, 1, Q("30 mm")),
    Sketcher.Constraint("DistanceX", 4, 3, -1, 1, Q("40 mm")),
    Sketcher.Constraint("DistanceY", 5, 3, -1, 1, Q("10 mm")),
    Sketcher.Constraint("DistanceY", 9, 3, -1, 1, Q("20 mm")),
    Sketcher.Constraint("DistanceY", 13, 3, -1, 1, Q("30 mm")),
    Sketcher.Constraint("DistanceY", 17, 3, -1, 1, Q("40 mm")),
])
sketch4.setExpression("Constraints[113]", "Params.sketch4_diameter")
pocket3 = body.newObject("PartDesign::Pocket", "Pocket002")
pocket3.Profile = sketch4
pocket3.Type = "ThroughAll"
pocket3.Reversed = True
doc.recompute()

fillet = body.newObject("PartDesign::Fillet", "Fillet")
fillet.Base = (pocket3, edges_at(pocket3, [
    (45, 1.5, 45),
    (-45, 1.5, 45),
    (-45, 1.5, -45),
    (45, 1.5, -45),
]))
fillet.setExpression("Radius", "Params.fillet_radius")

doc.recompute()
